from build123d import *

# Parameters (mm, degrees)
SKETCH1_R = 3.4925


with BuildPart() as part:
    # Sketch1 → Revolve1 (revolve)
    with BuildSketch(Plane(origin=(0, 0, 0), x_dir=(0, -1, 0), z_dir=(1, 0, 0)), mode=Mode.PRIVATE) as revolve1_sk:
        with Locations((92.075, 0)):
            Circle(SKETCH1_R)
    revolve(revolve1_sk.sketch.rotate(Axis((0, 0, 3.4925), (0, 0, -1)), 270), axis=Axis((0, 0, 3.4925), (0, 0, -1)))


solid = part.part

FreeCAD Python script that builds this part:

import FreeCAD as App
import Part
import Sketcher
from FreeCAD import Vector
Q = App.Units.Quantity

doc = App.newDocument("Part")
body = doc.addObject("PartDesign::Body", "Body")

# Sketch on YZ plane
sketch1 = doc.addObject("Sketcher::SketchObject", "Sketch")
body.addObject(sketch1)
sketch1.AttachmentSupport = (doc.YZ_Plane, [""])
sketch1.MapMode = "FlatFace"
sketch1.addGeometry(Part.Circle(Vector(-92.1, 0, 0), Vector(0, 0, 1), 3.5), False)
sketch1.addConstraint([
    Sketcher.Constraint("PointOnObject", 0, 3, -1),
    Sketcher.Constraint("Diameter", 0, Q("0.275 in")),
    Sketcher.Constraint("DistanceX", 0, 3, -1, 1, Q("3.625 in")),
])
revolution = doc.addObject("PartDesign::Revolution", "Revolution")
body.addObject(revolution)
revolution.Profile = sketch1
revolution.ReferenceAxis = (sketch1, ["V_Axis"])
revolution.Angle = 360

doc.recompute()
